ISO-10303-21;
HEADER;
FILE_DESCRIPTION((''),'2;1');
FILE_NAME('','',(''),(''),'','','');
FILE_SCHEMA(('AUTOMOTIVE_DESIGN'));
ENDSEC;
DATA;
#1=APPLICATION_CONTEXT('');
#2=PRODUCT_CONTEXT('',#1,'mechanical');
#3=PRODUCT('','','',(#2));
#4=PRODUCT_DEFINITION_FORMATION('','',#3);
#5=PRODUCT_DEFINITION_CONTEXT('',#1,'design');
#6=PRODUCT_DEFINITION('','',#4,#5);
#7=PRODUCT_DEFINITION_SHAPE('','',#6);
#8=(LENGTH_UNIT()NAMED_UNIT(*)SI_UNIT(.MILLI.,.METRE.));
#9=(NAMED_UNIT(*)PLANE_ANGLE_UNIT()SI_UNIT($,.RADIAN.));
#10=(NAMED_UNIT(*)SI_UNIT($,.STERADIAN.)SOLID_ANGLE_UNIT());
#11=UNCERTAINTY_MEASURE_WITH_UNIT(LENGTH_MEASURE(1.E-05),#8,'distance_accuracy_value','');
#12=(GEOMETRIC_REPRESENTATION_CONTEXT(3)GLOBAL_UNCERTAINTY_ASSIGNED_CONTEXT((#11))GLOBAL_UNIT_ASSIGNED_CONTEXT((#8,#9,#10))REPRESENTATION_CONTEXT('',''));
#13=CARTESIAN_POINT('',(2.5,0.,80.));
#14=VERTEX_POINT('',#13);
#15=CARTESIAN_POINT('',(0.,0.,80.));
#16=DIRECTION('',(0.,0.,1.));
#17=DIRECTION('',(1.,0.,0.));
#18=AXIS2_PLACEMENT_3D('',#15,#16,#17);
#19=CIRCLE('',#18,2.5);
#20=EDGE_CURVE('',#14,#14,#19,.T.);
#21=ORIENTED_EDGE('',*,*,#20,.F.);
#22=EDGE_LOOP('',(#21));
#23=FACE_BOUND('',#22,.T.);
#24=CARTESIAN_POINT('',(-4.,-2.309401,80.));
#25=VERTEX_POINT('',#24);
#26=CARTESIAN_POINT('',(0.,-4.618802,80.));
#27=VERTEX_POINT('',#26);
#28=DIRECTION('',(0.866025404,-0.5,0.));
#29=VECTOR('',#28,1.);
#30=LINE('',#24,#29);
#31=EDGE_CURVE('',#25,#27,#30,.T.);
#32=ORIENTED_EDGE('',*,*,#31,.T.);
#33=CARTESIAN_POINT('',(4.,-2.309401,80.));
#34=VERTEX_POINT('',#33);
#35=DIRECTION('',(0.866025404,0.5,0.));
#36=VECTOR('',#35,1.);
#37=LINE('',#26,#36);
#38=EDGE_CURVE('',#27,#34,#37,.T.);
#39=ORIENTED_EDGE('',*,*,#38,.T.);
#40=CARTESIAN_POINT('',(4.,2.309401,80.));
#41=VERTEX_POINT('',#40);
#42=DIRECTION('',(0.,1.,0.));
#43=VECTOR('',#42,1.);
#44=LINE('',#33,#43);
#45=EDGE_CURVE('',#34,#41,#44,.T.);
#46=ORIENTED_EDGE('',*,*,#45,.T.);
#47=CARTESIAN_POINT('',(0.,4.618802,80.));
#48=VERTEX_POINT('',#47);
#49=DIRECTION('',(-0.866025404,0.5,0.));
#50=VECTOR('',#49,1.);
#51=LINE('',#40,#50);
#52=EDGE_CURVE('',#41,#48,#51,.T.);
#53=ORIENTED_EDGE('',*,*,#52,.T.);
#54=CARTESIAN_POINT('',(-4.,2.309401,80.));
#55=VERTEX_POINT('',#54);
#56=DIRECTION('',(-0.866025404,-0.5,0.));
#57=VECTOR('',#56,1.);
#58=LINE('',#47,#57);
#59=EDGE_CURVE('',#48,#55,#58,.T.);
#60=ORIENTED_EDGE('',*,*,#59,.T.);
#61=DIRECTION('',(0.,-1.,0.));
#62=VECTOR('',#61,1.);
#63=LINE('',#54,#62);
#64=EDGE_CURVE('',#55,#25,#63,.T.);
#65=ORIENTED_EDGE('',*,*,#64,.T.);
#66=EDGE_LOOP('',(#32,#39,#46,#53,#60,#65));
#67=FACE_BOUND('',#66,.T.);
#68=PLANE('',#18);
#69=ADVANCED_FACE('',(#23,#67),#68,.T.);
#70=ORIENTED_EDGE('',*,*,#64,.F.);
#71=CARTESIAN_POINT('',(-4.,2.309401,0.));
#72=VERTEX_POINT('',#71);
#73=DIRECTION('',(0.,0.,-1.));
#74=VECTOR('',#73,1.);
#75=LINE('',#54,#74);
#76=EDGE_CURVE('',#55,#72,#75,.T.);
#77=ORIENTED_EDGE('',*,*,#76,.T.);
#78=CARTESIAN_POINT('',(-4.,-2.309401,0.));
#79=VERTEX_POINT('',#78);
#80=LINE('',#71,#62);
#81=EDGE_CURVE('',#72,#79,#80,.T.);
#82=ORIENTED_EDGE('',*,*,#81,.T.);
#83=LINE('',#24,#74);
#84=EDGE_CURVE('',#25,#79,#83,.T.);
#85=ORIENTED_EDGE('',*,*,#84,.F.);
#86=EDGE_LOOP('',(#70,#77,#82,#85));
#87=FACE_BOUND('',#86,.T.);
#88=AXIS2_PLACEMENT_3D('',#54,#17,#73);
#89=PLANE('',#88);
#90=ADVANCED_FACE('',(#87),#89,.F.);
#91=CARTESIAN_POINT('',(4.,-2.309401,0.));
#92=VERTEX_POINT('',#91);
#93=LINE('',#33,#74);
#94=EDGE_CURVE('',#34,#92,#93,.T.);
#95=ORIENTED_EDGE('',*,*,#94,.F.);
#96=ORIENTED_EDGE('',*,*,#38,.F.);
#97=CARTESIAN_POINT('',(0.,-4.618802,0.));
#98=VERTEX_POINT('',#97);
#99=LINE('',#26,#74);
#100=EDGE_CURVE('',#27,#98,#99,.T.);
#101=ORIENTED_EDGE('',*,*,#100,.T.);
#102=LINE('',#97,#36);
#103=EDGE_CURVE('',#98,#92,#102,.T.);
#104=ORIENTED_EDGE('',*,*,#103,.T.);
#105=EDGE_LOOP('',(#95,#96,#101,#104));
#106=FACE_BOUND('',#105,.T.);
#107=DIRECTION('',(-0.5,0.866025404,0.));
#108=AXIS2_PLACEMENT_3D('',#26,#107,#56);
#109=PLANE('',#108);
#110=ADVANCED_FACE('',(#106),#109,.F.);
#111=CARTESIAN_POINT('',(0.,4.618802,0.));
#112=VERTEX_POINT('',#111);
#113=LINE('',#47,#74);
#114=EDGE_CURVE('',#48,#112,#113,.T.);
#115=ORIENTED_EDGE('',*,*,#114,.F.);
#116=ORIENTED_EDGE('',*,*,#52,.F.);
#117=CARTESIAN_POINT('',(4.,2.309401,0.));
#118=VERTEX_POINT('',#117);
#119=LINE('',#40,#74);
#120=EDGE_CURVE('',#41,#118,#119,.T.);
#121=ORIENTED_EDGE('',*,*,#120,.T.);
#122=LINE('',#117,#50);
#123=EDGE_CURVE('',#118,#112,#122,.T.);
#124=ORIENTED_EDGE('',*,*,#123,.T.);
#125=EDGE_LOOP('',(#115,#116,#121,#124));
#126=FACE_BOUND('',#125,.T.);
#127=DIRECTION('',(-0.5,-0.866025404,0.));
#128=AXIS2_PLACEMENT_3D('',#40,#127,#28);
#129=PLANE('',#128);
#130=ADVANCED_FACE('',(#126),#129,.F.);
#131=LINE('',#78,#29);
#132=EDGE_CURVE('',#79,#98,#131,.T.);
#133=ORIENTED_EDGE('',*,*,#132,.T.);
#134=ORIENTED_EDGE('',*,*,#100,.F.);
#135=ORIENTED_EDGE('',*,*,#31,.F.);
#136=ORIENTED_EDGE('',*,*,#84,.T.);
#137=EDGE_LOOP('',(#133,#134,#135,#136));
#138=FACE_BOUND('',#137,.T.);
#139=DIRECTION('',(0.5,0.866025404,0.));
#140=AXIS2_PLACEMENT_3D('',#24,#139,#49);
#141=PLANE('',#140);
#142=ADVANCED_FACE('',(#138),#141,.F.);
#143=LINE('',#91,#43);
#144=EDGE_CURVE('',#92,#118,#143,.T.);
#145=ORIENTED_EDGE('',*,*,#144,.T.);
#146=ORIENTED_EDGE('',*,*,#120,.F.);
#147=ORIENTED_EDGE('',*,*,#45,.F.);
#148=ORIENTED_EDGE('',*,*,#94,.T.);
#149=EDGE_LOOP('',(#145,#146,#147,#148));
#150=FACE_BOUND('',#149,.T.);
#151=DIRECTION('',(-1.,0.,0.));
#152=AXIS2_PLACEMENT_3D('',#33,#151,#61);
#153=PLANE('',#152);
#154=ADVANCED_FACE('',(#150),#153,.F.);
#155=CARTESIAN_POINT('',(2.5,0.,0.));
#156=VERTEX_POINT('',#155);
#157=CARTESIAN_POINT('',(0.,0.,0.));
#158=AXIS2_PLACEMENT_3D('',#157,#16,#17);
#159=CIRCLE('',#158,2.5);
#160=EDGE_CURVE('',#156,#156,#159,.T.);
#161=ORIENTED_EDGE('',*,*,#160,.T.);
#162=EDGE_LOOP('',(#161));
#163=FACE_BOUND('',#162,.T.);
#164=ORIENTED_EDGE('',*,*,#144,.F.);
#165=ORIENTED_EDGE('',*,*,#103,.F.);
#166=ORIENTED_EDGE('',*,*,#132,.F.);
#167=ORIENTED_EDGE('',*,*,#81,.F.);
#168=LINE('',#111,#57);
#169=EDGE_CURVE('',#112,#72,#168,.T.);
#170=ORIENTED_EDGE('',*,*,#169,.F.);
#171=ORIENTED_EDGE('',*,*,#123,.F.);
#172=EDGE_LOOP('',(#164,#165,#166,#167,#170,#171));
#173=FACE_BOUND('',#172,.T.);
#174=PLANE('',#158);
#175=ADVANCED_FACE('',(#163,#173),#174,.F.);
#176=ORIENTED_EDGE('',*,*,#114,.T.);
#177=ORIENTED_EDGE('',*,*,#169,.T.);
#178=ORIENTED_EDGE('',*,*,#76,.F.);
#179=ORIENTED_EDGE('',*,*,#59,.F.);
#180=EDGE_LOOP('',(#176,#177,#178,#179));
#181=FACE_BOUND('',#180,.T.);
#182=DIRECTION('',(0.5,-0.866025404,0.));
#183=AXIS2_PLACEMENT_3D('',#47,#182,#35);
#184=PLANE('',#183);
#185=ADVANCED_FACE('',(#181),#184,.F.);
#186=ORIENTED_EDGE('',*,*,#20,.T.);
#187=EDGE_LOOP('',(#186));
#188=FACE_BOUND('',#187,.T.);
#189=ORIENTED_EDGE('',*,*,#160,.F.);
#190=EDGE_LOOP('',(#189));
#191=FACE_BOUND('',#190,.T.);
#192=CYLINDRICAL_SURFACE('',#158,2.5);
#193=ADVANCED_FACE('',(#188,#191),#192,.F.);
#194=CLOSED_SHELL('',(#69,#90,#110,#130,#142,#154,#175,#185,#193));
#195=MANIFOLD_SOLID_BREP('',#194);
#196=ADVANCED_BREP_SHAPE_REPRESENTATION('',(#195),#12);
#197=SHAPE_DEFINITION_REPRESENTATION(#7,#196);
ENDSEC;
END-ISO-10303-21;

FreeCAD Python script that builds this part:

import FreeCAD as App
import Part
import Sketcher
from FreeCAD import Vector
Q = App.Units.Quantity

doc = App.newDocument("Part")
params = doc.addObject("Spreadsheet::Sheet", "Params")
for row, (alias, value) in enumerate([
    ("pad1_length", "80 mm"),
    ("sketch2_diameter", "5 mm"),
], start=1):
    params.set(f"A{row}", alias)
    params.set(f"B{row}", "=" + value)
    params.setAlias(f"B{row}", alias)

body = doc.addObject("PartDesign::Body", "Body")

# Sketch on XY plane
sketch1 = body.newObject("Sketcher::SketchObject", "Sketch")
sketch1.AttachmentSupport = (doc.getObject("XY_Plane"), [""])
sketch1.MapMode = "FlatFace"
sketch1.addGeometry([
    Part.LineSegment(Vector(4, -2.3, 0), Vector(4, 2.3, 0)),  # 0
    Part.LineSegment(Vector(4, 2.3, 0), Vector(0, 4.6, 0)),  # 1
    Part.LineSegment(Vector(0, 4.6, 0), Vector(-4, 2.3, 0)),  # 2
    Part.LineSegment(Vector(-4, 2.3, 0), Vector(-4, -2.3, 0)),  # 3
    Part.LineSegment(Vector(-4, -2.3, 0), Vector(0, -4.6, 0)),  # 4
    Part.LineSegment(Vector(0, -4.6, 0), Vector(4, -2.3, 0)),  # 5
], False)
sketch1.addConstraint([
    Sketcher.Constraint("Coincident", 0, 2, 1, 1),
    Sketcher.Constraint("Coincident", 1, 2, 2, 1),
    Sketcher.Constraint("Coincident", 2, 2, 3, 1),
    Sketcher.Constraint("Coincident", 3, 2, 4, 1),
    Sketcher.Constraint("Coincident", 4, 2, 5, 1),
    Sketcher.Constraint("Coincident", 5, 2, 0, 1),
    Sketcher.Constraint("Vertical", 0),
    Sketcher.Constraint("Vertical", 3),
    Sketcher.Constraint("Symmetric", 0, 2, 3, 2, -1, 1),
    Sketcher.Constraint("Symmetric", 1, 2, 4, 2, -1, 1),
    Sketcher.Constraint("PointOnObject", 1, 2, -2),
    Sketcher.Constraint("Parallel", 2, 5),
    Sketcher.Constraint("Horizontal", 0, 2, 2, 2),
    Sketcher.Constraint("Angle", 1, Q("150 deg")),
    Sketcher.Constraint("DistanceX", -1, 1, 0, 2, 4.0),
    Sketcher.Constraint("DistanceY", -1, 1, 0, 2, 2.309401),
])
pad1 = body.newObject("PartDesign::Pad", "Pad")
pad1.Profile = sketch1
pad1.setExpression("Length", "Params.pad1_length")

# Sketch on XY plane
sketch2 = body.newObject("Sketcher::SketchObject", "Sketch001")
sketch2.AttachmentSupport = (doc.getObject("XY_Plane"), [""])
sketch2.MapMode = "FlatFace"
sketch2.AttachmentOffset = App.Placement(Vector(0, 0, 80), App.Rotation())
sketch2.addGeometry(Part.Circle(Vector(0, 0, 0), Vector(0, 0, 1), 2.5), False)
sketch2.addConstraint([
    Sketcher.Constraint("Coincident", 0, 3, -1, 1),
    Sketcher.Constraint("Diameter", 0, 5.0),
])
sketch2.setExpression("Constraints[1]", "Params.sketch2_diameter")
pocket1 = body.newObject("PartDesign::Pocket", "Pocket")
pocket1.Profile = sketch2
pocket1.Type = "ThroughAll"

doc.recompute()
